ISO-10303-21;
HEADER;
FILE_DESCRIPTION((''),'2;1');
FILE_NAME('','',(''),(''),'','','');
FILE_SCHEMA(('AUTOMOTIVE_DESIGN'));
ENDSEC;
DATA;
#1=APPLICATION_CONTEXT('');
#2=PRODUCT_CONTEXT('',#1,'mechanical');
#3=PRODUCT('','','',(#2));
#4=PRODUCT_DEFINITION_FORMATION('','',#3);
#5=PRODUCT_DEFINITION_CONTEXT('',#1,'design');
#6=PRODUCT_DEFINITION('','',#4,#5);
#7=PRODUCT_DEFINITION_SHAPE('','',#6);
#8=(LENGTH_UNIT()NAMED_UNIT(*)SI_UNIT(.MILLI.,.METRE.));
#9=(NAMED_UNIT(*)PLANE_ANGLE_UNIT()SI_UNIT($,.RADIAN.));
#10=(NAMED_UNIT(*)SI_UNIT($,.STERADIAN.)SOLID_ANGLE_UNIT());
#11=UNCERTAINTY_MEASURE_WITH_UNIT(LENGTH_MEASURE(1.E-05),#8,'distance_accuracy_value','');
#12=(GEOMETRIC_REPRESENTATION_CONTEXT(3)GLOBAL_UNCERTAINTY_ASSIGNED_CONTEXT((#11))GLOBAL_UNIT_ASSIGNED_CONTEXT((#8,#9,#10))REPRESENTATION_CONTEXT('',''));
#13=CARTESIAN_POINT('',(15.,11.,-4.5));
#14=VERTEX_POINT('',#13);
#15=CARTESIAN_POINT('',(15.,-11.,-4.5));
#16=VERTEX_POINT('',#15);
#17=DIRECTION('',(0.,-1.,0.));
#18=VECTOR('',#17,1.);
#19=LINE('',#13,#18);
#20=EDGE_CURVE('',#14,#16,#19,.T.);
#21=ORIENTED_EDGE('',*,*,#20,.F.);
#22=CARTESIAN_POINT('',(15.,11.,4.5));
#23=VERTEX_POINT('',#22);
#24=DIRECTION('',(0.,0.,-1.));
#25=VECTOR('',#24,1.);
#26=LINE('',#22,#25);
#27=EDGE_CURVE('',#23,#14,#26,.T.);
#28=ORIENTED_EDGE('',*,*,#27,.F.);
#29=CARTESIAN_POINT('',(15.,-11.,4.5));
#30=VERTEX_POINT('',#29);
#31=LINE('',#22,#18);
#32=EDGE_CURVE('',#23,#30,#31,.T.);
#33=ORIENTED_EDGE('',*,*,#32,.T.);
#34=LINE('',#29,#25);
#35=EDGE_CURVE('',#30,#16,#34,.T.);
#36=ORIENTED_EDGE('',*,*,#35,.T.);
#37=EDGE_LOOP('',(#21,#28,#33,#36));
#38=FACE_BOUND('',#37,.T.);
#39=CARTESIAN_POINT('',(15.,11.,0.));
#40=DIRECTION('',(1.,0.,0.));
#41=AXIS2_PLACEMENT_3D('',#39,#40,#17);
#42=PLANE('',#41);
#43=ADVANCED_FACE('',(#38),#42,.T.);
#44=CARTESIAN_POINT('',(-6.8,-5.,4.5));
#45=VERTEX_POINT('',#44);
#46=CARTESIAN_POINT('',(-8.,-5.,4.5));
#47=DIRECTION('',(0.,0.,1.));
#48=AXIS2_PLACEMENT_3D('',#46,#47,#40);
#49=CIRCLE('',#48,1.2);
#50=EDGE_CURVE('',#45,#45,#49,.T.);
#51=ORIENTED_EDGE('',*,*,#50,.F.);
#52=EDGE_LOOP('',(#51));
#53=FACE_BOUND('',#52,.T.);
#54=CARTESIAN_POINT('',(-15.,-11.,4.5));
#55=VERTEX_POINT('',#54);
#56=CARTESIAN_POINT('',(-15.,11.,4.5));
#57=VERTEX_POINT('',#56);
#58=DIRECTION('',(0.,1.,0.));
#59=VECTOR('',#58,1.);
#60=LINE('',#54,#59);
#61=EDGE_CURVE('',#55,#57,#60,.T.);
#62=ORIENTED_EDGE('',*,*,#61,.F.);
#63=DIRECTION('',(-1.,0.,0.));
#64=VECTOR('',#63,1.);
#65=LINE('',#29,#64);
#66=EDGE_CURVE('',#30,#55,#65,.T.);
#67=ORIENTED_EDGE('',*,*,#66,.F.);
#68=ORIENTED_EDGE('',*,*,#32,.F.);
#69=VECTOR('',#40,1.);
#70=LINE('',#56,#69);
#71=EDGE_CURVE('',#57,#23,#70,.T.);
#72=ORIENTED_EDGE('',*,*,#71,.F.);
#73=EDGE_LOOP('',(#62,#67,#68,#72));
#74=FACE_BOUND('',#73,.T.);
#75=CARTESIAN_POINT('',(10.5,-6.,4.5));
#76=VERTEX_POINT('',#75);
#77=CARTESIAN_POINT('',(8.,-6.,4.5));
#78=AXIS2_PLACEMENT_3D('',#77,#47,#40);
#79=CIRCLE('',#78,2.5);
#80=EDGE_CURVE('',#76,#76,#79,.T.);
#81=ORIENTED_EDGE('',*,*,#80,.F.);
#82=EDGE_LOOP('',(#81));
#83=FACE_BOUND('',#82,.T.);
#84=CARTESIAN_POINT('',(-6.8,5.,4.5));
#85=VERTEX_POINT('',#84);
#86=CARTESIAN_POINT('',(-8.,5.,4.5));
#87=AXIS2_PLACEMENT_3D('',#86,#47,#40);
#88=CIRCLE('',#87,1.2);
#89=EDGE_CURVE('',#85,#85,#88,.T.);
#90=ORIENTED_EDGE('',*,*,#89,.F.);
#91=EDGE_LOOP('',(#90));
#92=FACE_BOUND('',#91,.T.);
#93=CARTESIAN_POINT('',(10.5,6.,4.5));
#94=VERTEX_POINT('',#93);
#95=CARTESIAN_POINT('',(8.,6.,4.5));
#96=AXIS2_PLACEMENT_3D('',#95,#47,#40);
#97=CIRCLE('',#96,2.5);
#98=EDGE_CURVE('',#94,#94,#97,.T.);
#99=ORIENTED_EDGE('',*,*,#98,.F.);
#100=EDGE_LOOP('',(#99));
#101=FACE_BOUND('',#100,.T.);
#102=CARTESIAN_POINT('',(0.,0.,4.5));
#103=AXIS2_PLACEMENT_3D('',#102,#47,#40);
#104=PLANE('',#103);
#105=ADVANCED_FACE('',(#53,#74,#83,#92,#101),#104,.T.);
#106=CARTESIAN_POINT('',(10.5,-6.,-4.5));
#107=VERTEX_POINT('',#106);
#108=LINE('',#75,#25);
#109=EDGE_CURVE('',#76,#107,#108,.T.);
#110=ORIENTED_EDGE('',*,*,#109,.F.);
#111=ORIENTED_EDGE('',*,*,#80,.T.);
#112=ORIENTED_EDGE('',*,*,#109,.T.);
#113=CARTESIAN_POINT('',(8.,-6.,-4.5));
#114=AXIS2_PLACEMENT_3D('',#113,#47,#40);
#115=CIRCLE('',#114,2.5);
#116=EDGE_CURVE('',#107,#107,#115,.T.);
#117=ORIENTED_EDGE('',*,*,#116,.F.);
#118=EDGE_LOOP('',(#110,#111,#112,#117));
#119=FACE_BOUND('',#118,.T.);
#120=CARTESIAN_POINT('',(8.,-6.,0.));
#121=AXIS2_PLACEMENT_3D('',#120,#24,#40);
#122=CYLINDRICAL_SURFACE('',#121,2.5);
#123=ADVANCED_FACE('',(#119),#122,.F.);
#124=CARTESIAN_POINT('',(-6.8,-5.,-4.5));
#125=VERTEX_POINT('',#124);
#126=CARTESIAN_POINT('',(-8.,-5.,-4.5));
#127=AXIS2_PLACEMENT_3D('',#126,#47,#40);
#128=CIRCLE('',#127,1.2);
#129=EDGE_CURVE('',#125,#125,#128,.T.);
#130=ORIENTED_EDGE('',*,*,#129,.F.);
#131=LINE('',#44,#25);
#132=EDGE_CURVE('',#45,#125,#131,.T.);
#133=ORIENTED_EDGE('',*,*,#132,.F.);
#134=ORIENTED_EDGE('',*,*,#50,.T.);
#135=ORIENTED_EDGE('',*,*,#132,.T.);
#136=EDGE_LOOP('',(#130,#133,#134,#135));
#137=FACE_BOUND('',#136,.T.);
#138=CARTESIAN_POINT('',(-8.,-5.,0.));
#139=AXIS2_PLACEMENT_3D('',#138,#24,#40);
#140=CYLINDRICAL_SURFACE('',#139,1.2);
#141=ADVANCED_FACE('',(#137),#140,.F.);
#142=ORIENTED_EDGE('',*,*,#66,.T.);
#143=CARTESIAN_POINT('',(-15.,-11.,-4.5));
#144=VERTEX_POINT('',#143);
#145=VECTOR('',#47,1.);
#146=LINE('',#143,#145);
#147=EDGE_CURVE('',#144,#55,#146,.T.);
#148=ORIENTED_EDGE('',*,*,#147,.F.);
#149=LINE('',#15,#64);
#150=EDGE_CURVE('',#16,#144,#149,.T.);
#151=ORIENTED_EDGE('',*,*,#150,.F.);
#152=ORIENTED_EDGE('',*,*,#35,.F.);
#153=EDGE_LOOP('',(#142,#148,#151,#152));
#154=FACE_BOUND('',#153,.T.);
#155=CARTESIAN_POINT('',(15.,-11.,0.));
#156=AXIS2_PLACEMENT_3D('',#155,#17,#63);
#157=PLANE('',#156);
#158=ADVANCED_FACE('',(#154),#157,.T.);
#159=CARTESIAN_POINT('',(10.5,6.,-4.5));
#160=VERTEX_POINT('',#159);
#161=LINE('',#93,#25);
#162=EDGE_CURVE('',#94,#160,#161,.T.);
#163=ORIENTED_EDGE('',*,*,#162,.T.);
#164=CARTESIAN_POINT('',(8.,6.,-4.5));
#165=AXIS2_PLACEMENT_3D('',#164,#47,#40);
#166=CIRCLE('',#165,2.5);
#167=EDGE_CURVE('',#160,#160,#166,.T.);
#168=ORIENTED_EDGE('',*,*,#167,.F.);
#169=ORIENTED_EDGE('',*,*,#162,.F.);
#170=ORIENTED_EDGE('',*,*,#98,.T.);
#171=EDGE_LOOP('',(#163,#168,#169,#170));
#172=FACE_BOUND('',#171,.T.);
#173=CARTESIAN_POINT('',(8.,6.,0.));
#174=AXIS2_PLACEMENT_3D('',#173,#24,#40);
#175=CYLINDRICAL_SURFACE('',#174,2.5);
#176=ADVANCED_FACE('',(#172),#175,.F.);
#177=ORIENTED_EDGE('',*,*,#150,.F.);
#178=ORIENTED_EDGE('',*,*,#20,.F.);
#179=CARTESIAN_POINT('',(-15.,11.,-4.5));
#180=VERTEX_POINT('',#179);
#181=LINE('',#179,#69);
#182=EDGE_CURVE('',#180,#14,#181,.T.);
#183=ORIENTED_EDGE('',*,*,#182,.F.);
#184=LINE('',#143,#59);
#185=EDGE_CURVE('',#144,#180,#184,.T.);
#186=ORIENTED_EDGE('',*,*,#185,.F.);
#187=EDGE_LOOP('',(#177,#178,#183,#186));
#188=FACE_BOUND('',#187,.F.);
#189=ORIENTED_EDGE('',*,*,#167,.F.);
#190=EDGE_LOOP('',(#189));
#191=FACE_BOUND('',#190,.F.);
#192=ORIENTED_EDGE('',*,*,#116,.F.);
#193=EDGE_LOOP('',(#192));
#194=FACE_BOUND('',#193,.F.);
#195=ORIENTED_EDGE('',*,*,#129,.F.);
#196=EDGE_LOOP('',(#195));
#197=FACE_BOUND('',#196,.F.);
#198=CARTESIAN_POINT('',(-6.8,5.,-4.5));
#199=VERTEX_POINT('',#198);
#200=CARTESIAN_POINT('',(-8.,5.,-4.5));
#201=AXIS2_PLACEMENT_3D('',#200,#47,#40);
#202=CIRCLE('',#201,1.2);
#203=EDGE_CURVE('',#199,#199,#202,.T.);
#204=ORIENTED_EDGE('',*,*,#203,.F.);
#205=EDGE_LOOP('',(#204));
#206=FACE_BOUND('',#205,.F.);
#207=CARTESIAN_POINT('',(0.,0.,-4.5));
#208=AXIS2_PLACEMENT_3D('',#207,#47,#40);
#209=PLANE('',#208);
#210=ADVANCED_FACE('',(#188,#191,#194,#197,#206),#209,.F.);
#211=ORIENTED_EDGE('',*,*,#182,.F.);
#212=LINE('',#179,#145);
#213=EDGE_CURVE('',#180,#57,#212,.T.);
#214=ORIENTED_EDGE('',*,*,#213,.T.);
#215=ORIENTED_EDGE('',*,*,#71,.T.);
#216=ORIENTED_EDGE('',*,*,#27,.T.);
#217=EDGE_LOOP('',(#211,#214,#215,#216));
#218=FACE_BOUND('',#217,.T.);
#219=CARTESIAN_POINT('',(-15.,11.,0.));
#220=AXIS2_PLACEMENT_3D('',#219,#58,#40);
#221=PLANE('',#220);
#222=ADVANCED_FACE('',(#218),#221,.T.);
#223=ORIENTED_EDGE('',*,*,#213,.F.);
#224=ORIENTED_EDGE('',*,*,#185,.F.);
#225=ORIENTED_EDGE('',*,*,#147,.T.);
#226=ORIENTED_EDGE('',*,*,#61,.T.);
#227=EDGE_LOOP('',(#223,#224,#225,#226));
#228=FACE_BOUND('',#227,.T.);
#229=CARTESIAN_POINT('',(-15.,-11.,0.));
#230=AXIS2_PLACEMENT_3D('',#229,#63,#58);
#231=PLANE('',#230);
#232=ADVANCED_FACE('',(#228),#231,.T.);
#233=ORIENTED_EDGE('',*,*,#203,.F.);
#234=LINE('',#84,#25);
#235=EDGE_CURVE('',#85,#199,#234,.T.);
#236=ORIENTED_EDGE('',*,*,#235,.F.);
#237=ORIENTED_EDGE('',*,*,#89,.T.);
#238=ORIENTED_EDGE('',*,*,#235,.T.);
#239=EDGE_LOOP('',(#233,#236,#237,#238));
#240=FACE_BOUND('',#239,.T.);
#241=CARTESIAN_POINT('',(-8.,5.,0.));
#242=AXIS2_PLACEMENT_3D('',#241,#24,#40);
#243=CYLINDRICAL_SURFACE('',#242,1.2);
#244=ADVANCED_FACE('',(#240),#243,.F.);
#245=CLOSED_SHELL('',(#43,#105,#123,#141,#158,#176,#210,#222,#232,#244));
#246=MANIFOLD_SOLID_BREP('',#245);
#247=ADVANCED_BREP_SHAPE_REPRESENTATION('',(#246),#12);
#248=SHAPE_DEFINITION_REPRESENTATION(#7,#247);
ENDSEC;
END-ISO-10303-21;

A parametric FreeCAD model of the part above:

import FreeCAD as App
import Part
import Sketcher
from FreeCAD import Vector
Q = App.Units.Quantity


def add_polygon(sketch, points):
    """Adds a closed chain of lines whose ends are joined by coincident constraints."""
    first, n = sketch.GeometryCount, len(points)
    for a, b in zip(points, points[1:] + points[:1]):
        sketch.addGeometry(Part.LineSegment(App.Vector(*a, 0), App.Vector(*b, 0)), False)
    for i in range(n):
        sketch.addConstraint(Sketcher.Constraint("Coincident", first + i, 2, first + (i + 1) % n, 1))

doc = App.newDocument("Part")
body = doc.addObject("PartDesign::Body", "Body")

# Sketch on XY plane
sketch1 = body.newObject("Sketcher::SketchObject", "Sketch")
sketch1.AttachmentSupport = (doc.getObject("XY_Plane"), [""])
sketch1.MapMode = "FlatFace"
add_polygon(sketch1, [(15, 11), (-15, 11), (-15, -11), (15, -11)])  # lines 0-3
sketch1.addGeometry(Part.Circle(Vector(-8, -5, 0), Vector(0, 0, 1), 1.2), False)  # 4
sketch1.addGeometry(Part.Circle(Vector(8, -6, 0), Vector(0, 0, 1), 2.5), False)  # 5
sketch1.addGeometry(Part.Circle(Vector(-8, 5, 0), Vector(0, 0, 1), 1.2), False)  # 6
sketch1.addGeometry(Part.Circle(Vector(8, 6, 0), Vector(0, 0, 1), 2.5), False)  # 7
sketch1.addConstraint([
    Sketcher.Constraint("Horizontal", 0),
    Sketcher.Constraint("Vertical", 1),
    Sketcher.Constraint("Horizontal", 2),
    Sketcher.Constraint("Vertical", 3),
    Sketcher.Constraint("Equal", 4, 6),
    Sketcher.Constraint("Equal", 5, 7),
    Sketcher.Constraint("Symmetric", 0, 2, 2, 2, -1, 1),
    Sketcher.Constraint("Symmetric", 4, 3, 6, 3, -1),
    Sketcher.Constraint("Symmetric", 5, 3, 7, 3, -1),
    Sketcher.Constraint("Diameter", 5, Q("5 mm")),
    Sketcher.Constraint("Diameter", 4, Q("2.4 mm")),
    Sketcher.Constraint("DistanceX", 0, 2, 0, 1, Q("30 mm")),
    Sketcher.Constraint("DistanceY", 1, 2, 1, 1, Q("22 mm")),
    Sketcher.Constraint("DistanceX", 4, 3, -1, 1, Q("8 mm")),
    Sketcher.Constraint("DistanceY", 4, 3, -1, 1, Q("5 mm")),
    Sketcher.Constraint("DistanceX", -1, 1, 5, 3, Q("8 mm")),
    Sketcher.Constraint("DistanceY", 5, 3, 7, 3, Q("12 mm")),
])
pad1 = body.newObject("PartDesign::Pad", "Pad")
pad1.Profile = sketch1
pad1.Length = 9
pad1.Midplane = True

doc.recompute()
